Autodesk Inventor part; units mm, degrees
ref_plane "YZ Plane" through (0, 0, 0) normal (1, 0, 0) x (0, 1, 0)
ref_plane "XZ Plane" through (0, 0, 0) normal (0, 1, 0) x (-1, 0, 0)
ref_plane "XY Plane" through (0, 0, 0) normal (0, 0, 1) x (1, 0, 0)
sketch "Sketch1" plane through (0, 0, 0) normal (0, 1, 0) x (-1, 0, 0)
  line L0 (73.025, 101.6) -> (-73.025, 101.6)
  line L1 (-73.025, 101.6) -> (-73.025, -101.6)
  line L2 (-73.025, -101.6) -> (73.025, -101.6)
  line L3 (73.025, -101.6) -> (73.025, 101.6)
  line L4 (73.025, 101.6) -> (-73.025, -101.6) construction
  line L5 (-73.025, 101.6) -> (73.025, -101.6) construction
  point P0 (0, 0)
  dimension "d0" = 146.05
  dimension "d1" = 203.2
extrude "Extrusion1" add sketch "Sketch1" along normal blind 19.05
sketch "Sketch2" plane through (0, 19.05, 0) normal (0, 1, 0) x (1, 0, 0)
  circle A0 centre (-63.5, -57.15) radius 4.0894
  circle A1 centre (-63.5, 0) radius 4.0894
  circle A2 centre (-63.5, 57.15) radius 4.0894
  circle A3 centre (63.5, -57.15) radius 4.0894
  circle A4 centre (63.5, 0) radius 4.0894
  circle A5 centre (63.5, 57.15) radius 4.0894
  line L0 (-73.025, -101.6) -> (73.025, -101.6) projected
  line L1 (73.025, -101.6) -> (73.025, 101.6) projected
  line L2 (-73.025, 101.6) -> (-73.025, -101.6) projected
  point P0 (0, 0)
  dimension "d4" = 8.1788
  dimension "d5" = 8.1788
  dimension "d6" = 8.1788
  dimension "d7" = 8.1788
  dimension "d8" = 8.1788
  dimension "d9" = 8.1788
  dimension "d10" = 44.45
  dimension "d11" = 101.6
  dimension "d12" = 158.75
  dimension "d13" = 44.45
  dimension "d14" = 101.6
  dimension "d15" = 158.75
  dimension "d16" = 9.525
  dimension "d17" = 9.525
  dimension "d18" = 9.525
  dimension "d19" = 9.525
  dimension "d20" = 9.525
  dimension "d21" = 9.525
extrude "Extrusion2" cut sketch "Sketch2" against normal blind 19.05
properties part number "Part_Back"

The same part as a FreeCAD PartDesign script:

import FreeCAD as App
import Part
import Sketcher
from FreeCAD import Vector
Q = App.Units.Quantity


def add_polygon(sketch, points):
    """Adds a closed chain of lines whose ends are joined by coincident constraints."""
    first, n = sketch.GeometryCount, len(points)
    for a, b in zip(points, points[1:] + points[:1]):
        sketch.addGeometry(Part.LineSegment(App.Vector(*a, 0), App.Vector(*b, 0)), False)
    for i in range(n):
        sketch.addConstraint(Sketcher.Constraint("Coincident", first + i, 2, first + (i + 1) % n, 1))

doc = App.newDocument("Part")
body = doc.addObject("PartDesign::Body", "Body")

# Sketch on XZ plane
sketch1 = body.newObject("Sketcher::SketchObject", "Sketch")
sketch1.AttachmentSupport = (doc.getObject("XZ_Plane"), [""])
sketch1.MapMode = "FlatFace"
add_polygon(sketch1, [(-73.025, -101.6), (-73.025, 101.6), (73.025, 101.6), (73.025, -101.6)])  # lines 0-3
sketch1.addConstraint([
    Sketcher.Constraint("Vertical", 0),
    Sketcher.Constraint("Horizontal", 1),
    Sketcher.Constraint("Vertical", 2),
    Sketcher.Constraint("Horizontal", 3),
    Sketcher.Constraint("Symmetric", 0, 2, 2, 2, -1, 1),
    Sketcher.Constraint("DistanceY", 0, 1, 0, 2, Q("8 in")),
    Sketcher.Constraint("DistanceX", 1, 1, 1, 2, Q("5.75 in")),
])
pad1 = body.newObject("PartDesign::Pad", "Pad")
pad1.Profile = sketch1
pad1.Length = Q("0.75 in")
pad1.Reversed = True

# Sketch on XZ plane
sketch2 = body.newObject("Sketcher::SketchObject", "Sketch001")
sketch2.AttachmentSupport = (doc.getObject("XZ_Plane"), [""])
sketch2.MapMode = "FlatFace"
sketch2.AttachmentOffset = App.Placement(Vector(0, 0, -0.75 * 25.4), App.Rotation())
sketch2.addGeometry([
    Part.Circle(Vector(-63.5, 57.15, 0), Vector(0, 0, 1), 4.0894),  # 0
    Part.Circle(Vector(-63.5, 0, 0), Vector(0, 0, 1), 4.0894),  # 1
    Part.Circle(Vector(-63.5, -57.15, 0), Vector(0, 0, 1), 4.0894),  # 2
    Part.Circle(Vector(63.5, 57.15, 0), Vector(0, 0, 1), 4.0894),  # 3
    Part.Circle(Vector(63.5, 0, 0), Vector(0, 0, 1), 4.0894),  # 4
    Part.Circle(Vector(63.5, -57.15, 0), Vector(0, 0, 1), 4.0894),  # 5
], False)
sketch2.addConstraint([
    Sketcher.Constraint("Equal", 0, 1),
    Sketcher.Constraint("Equal", 1, 2),
    Sketcher.Constraint("Equal", 2, 3),
    Sketcher.Constraint("Equal", 3, 4),
    Sketcher.Constraint("Equal", 4, 5),
    Sketcher.Constraint("Symmetric", 2, 3, 3, 3, -1, 1),
    Sketcher.Constraint("Symmetric", 1, 3, 4, 3, -1, 1),
    Sketcher.Constraint("Symmetric", 0, 3, 5, 3, -1, 1),
    Sketcher.Constraint("Symmetric", 0, 3, 3, 3, -2),
    Sketcher.Constraint("PointOnObject", 1, 3, -1),
    Sketcher.Constraint("Vertical", 0, 3, 1, 3),
    Sketcher.Constraint("Diameter", 0, Q("0.322 in")),
    Sketcher.Constraint("DistanceX", 0, 3, 3, 3, Q("5 in")),
    Sketcher.Constraint("DistanceY", 2, 3, 0, 3, Q("4.5 in")),
])
pocket1 = body.newObject("PartDesign::Pocket", "Pocket")
pocket1.Profile = sketch2
pocket1.Length = Q("0.75 in")
pocket1.Reversed = True

doc.recompute()
